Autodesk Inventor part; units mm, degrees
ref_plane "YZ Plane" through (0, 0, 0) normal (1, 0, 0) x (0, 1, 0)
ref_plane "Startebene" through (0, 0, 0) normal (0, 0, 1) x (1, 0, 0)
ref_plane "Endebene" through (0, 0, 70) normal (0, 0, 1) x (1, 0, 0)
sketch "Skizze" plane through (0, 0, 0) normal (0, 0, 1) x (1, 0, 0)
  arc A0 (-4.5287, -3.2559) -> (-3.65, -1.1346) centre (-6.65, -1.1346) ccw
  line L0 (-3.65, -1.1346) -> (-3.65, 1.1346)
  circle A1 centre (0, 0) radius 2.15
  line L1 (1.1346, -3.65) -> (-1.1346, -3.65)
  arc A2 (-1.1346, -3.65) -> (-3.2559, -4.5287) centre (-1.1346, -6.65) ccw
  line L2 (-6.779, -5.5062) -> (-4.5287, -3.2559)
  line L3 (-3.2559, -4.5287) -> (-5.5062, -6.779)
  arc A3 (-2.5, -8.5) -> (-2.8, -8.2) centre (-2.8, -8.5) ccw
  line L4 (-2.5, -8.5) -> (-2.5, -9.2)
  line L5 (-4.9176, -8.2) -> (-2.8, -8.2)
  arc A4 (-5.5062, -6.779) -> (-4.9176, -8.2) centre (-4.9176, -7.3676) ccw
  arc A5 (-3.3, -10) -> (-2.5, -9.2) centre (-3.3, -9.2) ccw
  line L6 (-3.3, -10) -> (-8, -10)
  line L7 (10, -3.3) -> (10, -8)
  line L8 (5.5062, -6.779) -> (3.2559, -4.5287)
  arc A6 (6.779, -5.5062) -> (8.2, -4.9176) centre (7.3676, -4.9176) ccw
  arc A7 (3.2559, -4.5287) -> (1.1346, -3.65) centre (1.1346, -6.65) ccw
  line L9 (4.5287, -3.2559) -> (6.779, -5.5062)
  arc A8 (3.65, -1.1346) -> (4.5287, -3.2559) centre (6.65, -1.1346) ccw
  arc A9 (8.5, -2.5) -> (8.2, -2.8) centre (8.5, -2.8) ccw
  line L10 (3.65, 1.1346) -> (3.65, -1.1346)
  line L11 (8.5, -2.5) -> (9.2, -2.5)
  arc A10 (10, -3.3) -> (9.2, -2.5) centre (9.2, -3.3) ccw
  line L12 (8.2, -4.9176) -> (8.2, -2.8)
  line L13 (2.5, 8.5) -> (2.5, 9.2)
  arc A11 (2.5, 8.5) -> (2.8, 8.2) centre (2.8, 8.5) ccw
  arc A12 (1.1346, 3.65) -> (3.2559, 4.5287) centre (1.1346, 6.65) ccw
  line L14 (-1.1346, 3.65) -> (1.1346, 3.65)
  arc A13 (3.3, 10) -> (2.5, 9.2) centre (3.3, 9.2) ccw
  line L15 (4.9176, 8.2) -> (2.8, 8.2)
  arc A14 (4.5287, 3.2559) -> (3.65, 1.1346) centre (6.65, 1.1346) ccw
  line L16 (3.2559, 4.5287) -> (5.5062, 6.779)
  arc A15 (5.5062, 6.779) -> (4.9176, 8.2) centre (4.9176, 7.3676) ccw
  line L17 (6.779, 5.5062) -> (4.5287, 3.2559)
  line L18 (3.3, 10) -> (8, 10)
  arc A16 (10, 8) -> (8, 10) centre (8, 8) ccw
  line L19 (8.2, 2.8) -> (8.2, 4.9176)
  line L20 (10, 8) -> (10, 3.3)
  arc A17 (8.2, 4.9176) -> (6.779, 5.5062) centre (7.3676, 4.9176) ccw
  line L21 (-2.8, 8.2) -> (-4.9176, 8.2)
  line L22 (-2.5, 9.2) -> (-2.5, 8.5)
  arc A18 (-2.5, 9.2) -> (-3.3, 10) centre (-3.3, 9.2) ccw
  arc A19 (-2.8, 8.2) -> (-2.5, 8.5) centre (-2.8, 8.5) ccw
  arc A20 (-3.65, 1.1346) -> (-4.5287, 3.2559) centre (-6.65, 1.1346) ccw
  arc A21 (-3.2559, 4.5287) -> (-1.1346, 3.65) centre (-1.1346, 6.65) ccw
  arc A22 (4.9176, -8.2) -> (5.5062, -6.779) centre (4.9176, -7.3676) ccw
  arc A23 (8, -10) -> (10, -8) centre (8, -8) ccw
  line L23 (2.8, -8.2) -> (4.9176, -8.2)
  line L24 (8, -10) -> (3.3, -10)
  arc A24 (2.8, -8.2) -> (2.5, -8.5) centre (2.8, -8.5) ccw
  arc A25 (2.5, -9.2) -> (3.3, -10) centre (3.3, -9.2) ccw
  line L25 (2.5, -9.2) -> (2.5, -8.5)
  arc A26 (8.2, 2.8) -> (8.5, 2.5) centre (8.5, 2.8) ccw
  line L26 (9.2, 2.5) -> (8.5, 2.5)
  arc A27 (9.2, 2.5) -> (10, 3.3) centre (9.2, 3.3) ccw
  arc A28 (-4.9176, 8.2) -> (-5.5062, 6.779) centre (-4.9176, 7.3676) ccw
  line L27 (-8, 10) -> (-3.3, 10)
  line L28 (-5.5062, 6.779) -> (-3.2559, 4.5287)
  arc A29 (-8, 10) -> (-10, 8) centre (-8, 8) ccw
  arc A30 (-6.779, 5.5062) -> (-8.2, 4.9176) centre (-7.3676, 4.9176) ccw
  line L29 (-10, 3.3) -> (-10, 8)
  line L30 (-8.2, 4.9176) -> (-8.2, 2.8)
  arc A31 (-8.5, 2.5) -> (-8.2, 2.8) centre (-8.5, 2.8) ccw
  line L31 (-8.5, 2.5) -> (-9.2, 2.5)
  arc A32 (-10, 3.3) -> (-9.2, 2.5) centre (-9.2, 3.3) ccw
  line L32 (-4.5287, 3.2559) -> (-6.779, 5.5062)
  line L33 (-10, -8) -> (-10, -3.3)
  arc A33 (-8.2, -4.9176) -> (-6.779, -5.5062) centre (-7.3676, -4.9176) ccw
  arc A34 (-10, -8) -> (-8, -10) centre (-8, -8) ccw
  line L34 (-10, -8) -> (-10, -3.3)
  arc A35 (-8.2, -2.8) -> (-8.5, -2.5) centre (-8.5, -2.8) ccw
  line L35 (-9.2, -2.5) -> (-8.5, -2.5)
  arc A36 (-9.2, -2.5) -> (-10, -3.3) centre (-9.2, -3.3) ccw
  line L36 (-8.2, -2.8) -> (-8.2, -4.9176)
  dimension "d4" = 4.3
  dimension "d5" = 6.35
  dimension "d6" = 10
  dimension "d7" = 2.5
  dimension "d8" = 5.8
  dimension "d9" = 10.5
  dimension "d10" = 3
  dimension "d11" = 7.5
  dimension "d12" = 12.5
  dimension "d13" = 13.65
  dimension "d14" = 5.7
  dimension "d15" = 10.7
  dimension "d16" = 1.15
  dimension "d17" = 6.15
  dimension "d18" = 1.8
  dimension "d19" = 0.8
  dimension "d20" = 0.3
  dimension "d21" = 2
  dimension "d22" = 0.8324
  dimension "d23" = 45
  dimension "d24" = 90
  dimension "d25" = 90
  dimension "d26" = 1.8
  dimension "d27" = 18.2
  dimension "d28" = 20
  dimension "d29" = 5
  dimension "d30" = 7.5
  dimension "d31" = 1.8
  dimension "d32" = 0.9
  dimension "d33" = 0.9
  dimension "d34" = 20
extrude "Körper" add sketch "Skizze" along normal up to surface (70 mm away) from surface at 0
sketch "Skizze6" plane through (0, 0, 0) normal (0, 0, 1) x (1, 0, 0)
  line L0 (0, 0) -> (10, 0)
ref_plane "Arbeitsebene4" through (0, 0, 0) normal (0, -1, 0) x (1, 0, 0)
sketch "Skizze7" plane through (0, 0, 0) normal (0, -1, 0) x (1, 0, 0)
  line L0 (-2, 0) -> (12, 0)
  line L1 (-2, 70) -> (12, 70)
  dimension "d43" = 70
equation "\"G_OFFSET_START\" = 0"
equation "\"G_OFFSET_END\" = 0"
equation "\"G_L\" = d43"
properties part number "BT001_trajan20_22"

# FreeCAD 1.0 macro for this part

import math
import FreeCAD as App
import Part
import Sketcher

V = App.Vector
Q = App.Units.Quantity

doc = App.newDocument("Part")
body = doc.addObject("PartDesign::Body", "Body")

# Sketch on XY plane
sketch1 = body.newObject("Sketcher::SketchObject", "Sketch")
sketch1.AttachmentSupport = (doc.getObject("XY_Plane"), [""])
sketch1.MapMode = "FlatFace"
sketch1.addGeometry(Part.ArcOfCircle(Part.Circle(V(-6.65, -1.13, 0), V(0, 0, 1), 3), math.radians(-45), math.radians(0)), False)
sketch1.addGeometry(Part.LineSegment(V(-4.53, -3.26, 0), V(-6.78, -5.51, 0)), False)
sketch1.addGeometry(Part.ArcOfCircle(Part.Circle(V(-7.37, -4.92, 0), V(0, 0, 1), 0.83), math.radians(180), math.radians(315)), False)
sketch1.addGeometry(Part.LineSegment(V(-8.2, -4.92, 0), V(-8.2, -2.8, 0)), False)
sketch1.addGeometry(Part.ArcOfCircle(Part.Circle(V(-8.5, -2.8, 0), V(0, 0, 1), 0.3), math.radians(0), math.radians(90)), False)
sketch1.addGeometry(Part.LineSegment(V(-8.5, -2.5, 0), V(-9.2, -2.5, 0)), False)
sketch1.addGeometry(Part.ArcOfCircle(Part.Circle(V(-9.2, -3.3, 0), V(0, 0, 1), 0.8), math.radians(90), math.radians(180)), False)
sketch1.addGeometry(Part.LineSegment(V(-10, -3.3, 0), V(-10, -8, 0)), False)
sketch1.addGeometry(Part.ArcOfCircle(Part.Circle(V(-8, -8, 0), V(0, 0, 1), 2), math.radians(180), math.radians(270)), False)
sketch1.addGeometry(Part.LineSegment(V(-8, -10, 0), V(-3.3, -10, 0)), False)
sketch1.addGeometry(Part.ArcOfCircle(Part.Circle(V(-3.3, -9.2, 0), V(0, 0, 1), 0.8), math.radians(-90), math.radians(0)), False)
sketch1.addGeometry(Part.LineSegment(V(-2.5, -9.2, 0), V(-2.5, -8.5, 0)), False)
sketch1.addGeometry(Part.ArcOfCircle(Part.Circle(V(-2.8, -8.5, 0), V(0, 0, 1), 0.3), math.radians(0), math.radians(90)), False)
sketch1.addGeometry(Part.LineSegment(V(-2.8, -8.2, 0), V(-4.92, -8.2, 0)), False)
sketch1.addGeometry(Part.ArcOfCircle(Part.Circle(V(-4.92, -7.37, 0), V(0, 0, 1), 0.83), math.radians(135), math.radians(270)), False)
sketch1.addGeometry(Part.LineSegment(V(-5.51, -6.78, 0), V(-3.26, -4.53, 0)), False)
sketch1.addGeometry(Part.ArcOfCircle(Part.Circle(V(-1.13, -6.65, 0), V(0, 0, 1), 3), math.radians(90), math.radians(135)), False)
sketch1.addGeometry(Part.LineSegment(V(-1.13, -3.65, 0), V(1.13, -3.65, 0)), False)
sketch1.addGeometry(Part.ArcOfCircle(Part.Circle(V(1.13, -6.65, 0), V(0, 0, 1), 3), math.radians(45), math.radians(90)), False)
sketch1.addGeometry(Part.LineSegment(V(3.26, -4.53, 0), V(5.51, -6.78, 0)), False)
sketch1.addGeometry(Part.ArcOfCircle(Part.Circle(V(4.92, -7.37, 0), V(0, 0, 1), 0.83), math.radians(-90), math.radians(45)), False)
sketch1.addGeometry(Part.LineSegment(V(4.92, -8.2, 0), V(2.8, -8.2, 0)), False)
sketch1.addGeometry(Part.ArcOfCircle(Part.Circle(V(2.8, -8.5, 0), V(0, 0, 1), 0.3), math.radians(90), math.radians(180)), False)
sketch1.addGeometry(Part.LineSegment(V(2.5, -8.5, 0), V(2.5, -9.2, 0)), False)
sketch1.addGeometry(Part.ArcOfCircle(Part.Circle(V(3.3, -9.2, 0), V(0, 0, 1), 0.8), math.radians(180), math.radians(270)), False)
sketch1.addGeometry(Part.LineSegment(V(3.3, -10, 0), V(8, -10, 0)), False)
sketch1.addGeometry(Part.ArcOfCircle(Part.Circle(V(8, -8, 0), V(0, 0, 1), 2), math.radians(-90), math.radians(0)), False)
sketch1.addGeometry(Part.LineSegment(V(10, -8, 0), V(10, -3.3, 0)), False)
sketch1.addGeometry(Part.ArcOfCircle(Part.Circle(V(9.2, -3.3, 0), V(0, 0, 1), 0.8), math.radians(0), math.radians(90)), False)
sketch1.addGeometry(Part.LineSegment(V(9.2, -2.5, 0), V(8.5, -2.5, 0)), False)
sketch1.addGeometry(Part.ArcOfCircle(Part.Circle(V(8.5, -2.8, 0), V(0, 0, 1), 0.3), math.radians(90), math.radians(180)), False)
sketch1.addGeometry(Part.LineSegment(V(8.2, -2.8, 0), V(8.2, -4.92, 0)), False)
sketch1.addGeometry(Part.ArcOfCircle(Part.Circle(V(7.37, -4.92, 0), V(0, 0, 1), 0.83), math.radians(-135), math.radians(0)), False)
sketch1.addGeometry(Part.LineSegment(V(6.78, -5.51, 0), V(4.53, -3.26, 0)), False)
sketch1.addGeometry(Part.ArcOfCircle(Part.Circle(V(6.65, -1.13, 0), V(0, 0, 1), 3), math.radians(180), math.radians(225)), False)
sketch1.addGeometry(Part.LineSegment(V(3.65, -1.13, 0), V(3.65, 1.13, 0)), False)
sketch1.addGeometry(Part.ArcOfCircle(Part.Circle(V(6.65, 1.13, 0), V(0, 0, 1), 3), math.radians(135), math.radians(180)), False)
sketch1.addGeometry(Part.LineSegment(V(4.53, 3.26, 0), V(6.78, 5.51, 0)), False)
sketch1.addGeometry(Part.ArcOfCircle(Part.Circle(V(7.37, 4.92, 0), V(0, 0, 1), 0.83), math.radians(0), math.radians(135)), False)
sketch1.addGeometry(Part.LineSegment(V(8.2, 4.92, 0), V(8.2, 2.8, 0)), False)
sketch1.addGeometry(Part.ArcOfCircle(Part.Circle(V(8.5, 2.8, 0), V(0, 0, 1), 0.3), math.radians(180), math.radians(270)), False)
sketch1.addGeometry(Part.LineSegment(V(8.5, 2.5, 0), V(9.2, 2.5, 0)), False)
sketch1.addGeometry(Part.ArcOfCircle(Part.Circle(V(9.2, 3.3, 0), V(0, 0, 1), 0.8), math.radians(-90), math.radians(0)), False)
sketch1.addGeometry(Part.LineSegment(V(10, 3.3, 0), V(10, 8, 0)), False)
sketch1.addGeometry(Part.ArcOfCircle(Part.Circle(V(8, 8, 0), V(0, 0, 1), 2), math.radians(0), math.radians(90)), False)
sketch1.addGeometry(Part.LineSegment(V(8, 10, 0), V(3.3, 10, 0)), False)
sketch1.addGeometry(Part.ArcOfCircle(Part.Circle(V(3.3, 9.2, 0), V(0, 0, 1), 0.8), math.radians(90), math.radians(180)), False)
sketch1.addGeometry(Part.LineSegment(V(2.5, 9.2, 0), V(2.5, 8.5, 0)), False)
sketch1.addGeometry(Part.ArcOfCircle(Part.Circle(V(2.8, 8.5, 0), V(0, 0, 1), 0.3), math.radians(180), math.radians(270)), False)
sketch1.addGeometry(Part.LineSegment(V(2.8, 8.2, 0), V(4.92, 8.2, 0)), False)
sketch1.addGeometry(Part.ArcOfCircle(Part.Circle(V(4.92, 7.37, 0), V(0, 0, 1), 0.83), math.radians(-45), math.radians(90)), False)
sketch1.addGeometry(Part.LineSegment(V(5.51, 6.78, 0), V(3.26, 4.53, 0)), False)
sketch1.addGeometry(Part.ArcOfCircle(Part.Circle(V(1.13, 6.65, 0), V(0, 0, 1), 3), math.radians(-90), math.radians(-45)), False)
sketch1.addGeometry(Part.LineSegment(V(1.13, 3.65, 0), V(-1.13, 3.65, 0)), False)
sketch1.addGeometry(Part.ArcOfCircle(Part.Circle(V(-1.13, 6.65, 0), V(0, 0, 1), 3), math.radians(-135), math.radians(-90)), False)
sketch1.addGeometry(Part.LineSegment(V(-3.26, 4.53, 0), V(-5.51, 6.78, 0)), False)
sketch1.addGeometry(Part.ArcOfCircle(Part.Circle(V(-4.92, 7.37, 0), V(0, 0, 1), 0.83), math.radians(90), math.radians(225)), False)
sketch1.addGeometry(Part.LineSegment(V(-4.92, 8.2, 0), V(-2.8, 8.2, 0)), False)
sketch1.addGeometry(Part.ArcOfCircle(Part.Circle(V(-2.8, 8.5, 0), V(0, 0, 1), 0.3), math.radians(-90), math.radians(0)), False)
sketch1.addGeometry(Part.LineSegment(V(-2.5, 8.5, 0), V(-2.5, 9.2, 0)), False)
sketch1.addGeometry(Part.ArcOfCircle(Part.Circle(V(-3.3, 9.2, 0), V(0, 0, 1), 0.8), math.radians(0), math.radians(90)), False)
sketch1.addGeometry(Part.LineSegment(V(-3.3, 10, 0), V(-8, 10, 0)), False)
sketch1.addGeometry(Part.ArcOfCircle(Part.Circle(V(-8, 8, 0), V(0, 0, 1), 2), math.radians(90), math.radians(180)), False)
sketch1.addGeometry(Part.LineSegment(V(-10, 8, 0), V(-10, 3.3, 0)), False)
sketch1.addGeometry(Part.ArcOfCircle(Part.Circle(V(-9.2, 3.3, 0), V(0, 0, 1), 0.8), math.radians(180), math.radians(270)), False)
sketch1.addGeometry(Part.LineSegment(V(-9.2, 2.5, 0), V(-8.5, 2.5, 0)), False)
sketch1.addGeometry(Part.ArcOfCircle(Part.Circle(V(-8.5, 2.8, 0), V(0, 0, 1), 0.3), math.radians(-90), math.radians(0)), False)
sketch1.addGeometry(Part.LineSegment(V(-8.2, 2.8, 0), V(-8.2, 4.92, 0)), False)
sketch1.addGeometry(Part.ArcOfCircle(Part.Circle(V(-7.37, 4.92, 0), V(0, 0, 1), 0.83), math.radians(45), math.radians(180)), False)
sketch1.addGeometry(Part.LineSegment(V(-6.78, 5.51, 0), V(-4.53, 3.26, 0)), False)
sketch1.addGeometry(Part.ArcOfCircle(Part.Circle(V(-6.65, 1.13, 0), V(0, 0, 1), 3), math.radians(0), math.radians(45)), False)
sketch1.addGeometry(Part.LineSegment(V(-3.65, 1.13, 0), V(-3.65, -1.13, 0)), False)
sketch1.addGeometry(Part.Circle(V(0, 0, 0), V(0, 0, 1), 2.15), False)
sketch1.addConstraint(Sketcher.Constraint("Tangent", 0, 1, 1, 1))
sketch1.addConstraint(Sketcher.Constraint("Tangent", 1, 2, 2, 2))
sketch1.addConstraint(Sketcher.Constraint("Tangent", 2, 1, 3, 1))
sketch1.addConstraint(Sketcher.Constraint("Tangent", 3, 2, 4, 1))
sketch1.addConstraint(Sketcher.Constraint("Tangent", 4, 2, 5, 1))
sketch1.addConstraint(Sketcher.Constraint("Tangent", 5, 2, 6, 1))
sketch1.addConstraint(Sketcher.Constraint("Tangent", 6, 2, 7, 1))
sketch1.addConstraint(Sketcher.Constraint("Tangent", 7, 2, 8, 1))
sketch1.addConstraint(Sketcher.Constraint("Tangent", 8, 2, 9, 1))
sketch1.addConstraint(Sketcher.Constraint("Tangent", 9, 2, 10, 1))
sketch1.addConstraint(Sketcher.Constraint("Tangent", 10, 2, 11, 1))
sketch1.addConstraint(Sketcher.Constraint("Tangent", 11, 2, 12, 1))
sketch1.addConstraint(Sketcher.Constraint("Tangent", 12, 2, 13, 1))
sketch1.addConstraint(Sketcher.Constraint("Tangent", 13, 2, 14, 2))
sketch1.addConstraint(Sketcher.Constraint("Tangent", 14, 1, 15, 1))
sketch1.addConstraint(Sketcher.Constraint("Tangent", 15, 2, 16, 2))
sketch1.addConstraint(Sketcher.Constraint("Tangent", 16, 1, 17, 1))
sketch1.addConstraint(Sketcher.Constraint("Tangent", 17, 2, 18, 2))
sketch1.addConstraint(Sketcher.Constraint("Tangent", 18, 1, 19, 1))
sketch1.addConstraint(Sketcher.Constraint("Tangent", 19, 2, 20, 2))
sketch1.addConstraint(Sketcher.Constraint("Tangent", 20, 1, 21, 1))
sketch1.addConstraint(Sketcher.Constraint("Tangent", 21, 2, 22, 1))
sketch1.addConstraint(Sketcher.Constraint("Tangent", 22, 2, 23, 1))
sketch1.addConstraint(Sketcher.Constraint("Tangent", 23, 2, 24, 1))
sketch1.addConstraint(Sketcher.Constraint("Tangent", 24, 2, 25, 1))
sketch1.addConstraint(Sketcher.Constraint("Tangent", 25, 2, 26, 1))
sketch1.addConstraint(Sketcher.Constraint("Tangent", 26, 2, 27, 1))
sketch1.addConstraint(Sketcher.Constraint("Tangent", 27, 2, 28, 1))
sketch1.addConstraint(Sketcher.Constraint("Tangent", 28, 2, 29, 1))
sketch1.addConstraint(Sketcher.Constraint("Tangent", 29, 2, 30, 1))
sketch1.addConstraint(Sketcher.Constraint("Tangent", 30, 2, 31, 1))
sketch1.addConstraint(Sketcher.Constraint("Tangent", 31, 2, 32, 2))
sketch1.addConstraint(Sketcher.Constraint("Tangent", 32, 1, 33, 1))
sketch1.addConstraint(Sketcher.Constraint("Tangent", 33, 2, 34, 2))
sketch1.addConstraint(Sketcher.Constraint("Tangent", 34, 1, 35, 1))
sketch1.addConstraint(Sketcher.Constraint("Tangent", 35, 2, 36, 2))
sketch1.addConstraint(Sketcher.Constraint("Tangent", 36, 1, 37, 1))
sketch1.addConstraint(Sketcher.Constraint("Tangent", 37, 2, 38, 2))
sketch1.addConstraint(Sketcher.Constraint("Tangent", 38, 1, 39, 1))
sketch1.addConstraint(Sketcher.Constraint("Tangent", 39, 2, 40, 1))
sketch1.addConstraint(Sketcher.Constraint("Tangent", 40, 2, 41, 1))
sketch1.addConstraint(Sketcher.Constraint("Tangent", 41, 2, 42, 1))
sketch1.addConstraint(Sketcher.Constraint("Tangent", 42, 2, 43, 1))
sketch1.addConstraint(Sketcher.Constraint("Tangent", 43, 2, 44, 1))
sketch1.addConstraint(Sketcher.Constraint("Tangent", 44, 2, 45, 1))
sketch1.addConstraint(Sketcher.Constraint("Tangent", 45, 2, 46, 1))
sketch1.addConstraint(Sketcher.Constraint("Tangent", 46, 2, 47, 1))
sketch1.addConstraint(Sketcher.Constraint("Tangent", 47, 2, 48, 1))
sketch1.addConstraint(Sketcher.Constraint("Tangent", 48, 2, 49, 1))
sketch1.addConstraint(Sketcher.Constraint("Tangent", 49, 2, 50, 2))
sketch1.addConstraint(Sketcher.Constraint("Tangent", 50, 1, 51, 1))
sketch1.addConstraint(Sketcher.Constraint("Tangent", 51, 2, 52, 2))
sketch1.addConstraint(Sketcher.Constraint("Tangent", 52, 1, 53, 1))
sketch1.addConstraint(Sketcher.Constraint("Tangent", 53, 2, 54, 2))
sketch1.addConstraint(Sketcher.Constraint("Tangent", 54, 1, 55, 1))
sketch1.addConstraint(Sketcher.Constraint("Tangent", 55, 2, 56, 2))
sketch1.addConstraint(Sketcher.Constraint("Tangent", 56, 1, 57, 1))
sketch1.addConstraint(Sketcher.Constraint("Tangent", 57, 2, 58, 1))
sketch1.addConstraint(Sketcher.Constraint("Tangent", 58, 2, 59, 1))
sketch1.addConstraint(Sketcher.Constraint("Tangent", 59, 2, 60, 1))
sketch1.addConstraint(Sketcher.Constraint("Tangent", 60, 2, 61, 1))
sketch1.addConstraint(Sketcher.Constraint("Tangent", 61, 2, 62, 1))
sketch1.addConstraint(Sketcher.Constraint("Tangent", 62, 2, 63, 1))
sketch1.addConstraint(Sketcher.Constraint("Tangent", 63, 2, 64, 1))
sketch1.addConstraint(Sketcher.Constraint("Tangent", 64, 2, 65, 1))
sketch1.addConstraint(Sketcher.Constraint("Tangent", 65, 2, 66, 1))
sketch1.addConstraint(Sketcher.Constraint("Tangent", 66, 2, 67, 1))
sketch1.addConstraint(Sketcher.Constraint("Tangent", 67, 2, 68, 2))
sketch1.addConstraint(Sketcher.Constraint("Tangent", 68, 1, 69, 1))
sketch1.addConstraint(Sketcher.Constraint("Tangent", 69, 2, 70, 2))
sketch1.addConstraint(Sketcher.Constraint("Tangent", 70, 1, 71, 1))
sketch1.addConstraint(Sketcher.Constraint("Tangent", 71, 2, 0, 2))
sketch1.addConstraint(Sketcher.Constraint("Vertical", 3))
sketch1.addConstraint(Sketcher.Constraint("Horizontal", 5))
sketch1.addConstraint(Sketcher.Constraint("Vertical", 7))
sketch1.addConstraint(Sketcher.Constraint("Horizontal", 9))
sketch1.addConstraint(Sketcher.Constraint("Vertical", 11))
sketch1.addConstraint(Sketcher.Constraint("Horizontal", 13))
sketch1.addConstraint(Sketcher.Constraint("Horizontal", 17))
sketch1.addConstraint(Sketcher.Constraint("Horizontal", 21))
sketch1.addConstraint(Sketcher.Constraint("Vertical", 23))
sketch1.addConstraint(Sketcher.Constraint("Horizontal", 25))
sketch1.addConstraint(Sketcher.Constraint("Vertical", 27))
sketch1.addConstraint(Sketcher.Constraint("Horizontal", 29))
sketch1.addConstraint(Sketcher.Constraint("Vertical", 31))
sketch1.addConstraint(Sketcher.Constraint("Vertical", 35))
sketch1.addConstraint(Sketcher.Constraint("Vertical", 39))
sketch1.addConstraint(Sketcher.Constraint("Horizontal", 41))
sketch1.addConstraint(Sketcher.Constraint("Vertical", 43))
sketch1.addConstraint(Sketcher.Constraint("Horizontal", 45))
sketch1.addConstraint(Sketcher.Constraint("Vertical", 47))
sketch1.addConstraint(Sketcher.Constraint("Horizontal", 49))
sketch1.addConstraint(Sketcher.Constraint("Horizontal", 53))
sketch1.addConstraint(Sketcher.Constraint("Horizontal", 57))
sketch1.addConstraint(Sketcher.Constraint("Vertical", 59))
sketch1.addConstraint(Sketcher.Constraint("Horizontal", 61))
sketch1.addConstraint(Sketcher.Constraint("Vertical", 63))
sketch1.addConstraint(Sketcher.Constraint("Horizontal", 65))
sketch1.addConstraint(Sketcher.Constraint("Vertical", 67))
sketch1.addConstraint(Sketcher.Constraint("Vertical", 71))
sketch1.addConstraint(Sketcher.Constraint("Coincident", 72, 3, -1, 1))
sketch1.addConstraint(Sketcher.Constraint("Equal", 6, 10))
sketch1.addConstraint(Sketcher.Constraint("Equal", 4, 12))
sketch1.addConstraint(Sketcher.Constraint("Equal", 2, 14))
sketch1.addConstraint(Sketcher.Constraint("Equal", 0, 16))
sketch1.addConstraint(Sketcher.Constraint("Equal", 16, 18))
sketch1.addConstraint(Sketcher.Constraint("Equal", 14, 20))
sketch1.addConstraint(Sketcher.Constraint("Equal", 12, 22))
sketch1.addConstraint(Sketcher.Constraint("Equal", 10, 24))
sketch1.addConstraint(Sketcher.Constraint("Equal", 8, 26))
sketch1.addConstraint(Sketcher.Constraint("Equal", 24, 28))
sketch1.addConstraint(Sketcher.Constraint("Equal", 22, 30))
sketch1.addConstraint(Sketcher.Constraint("Equal", 20, 32))
sketch1.addConstraint(Sketcher.Constraint("Equal", 18, 34))
sketch1.addConstraint(Sketcher.Constraint("Equal", 34, 36))
sketch1.addConstraint(Sketcher.Constraint("Equal", 32, 38))
sketch1.addConstraint(Sketcher.Constraint("Equal", 30, 40))
sketch1.addConstraint(Sketcher.Constraint("Equal", 28, 42))
sketch1.addConstraint(Sketcher.Constraint("Equal", 26, 44))
sketch1.addConstraint(Sketcher.Constraint("Equal", 42, 46))
sketch1.addConstraint(Sketcher.Constraint("Equal", 40, 48))
sketch1.addConstraint(Sketcher.Constraint("Equal", 38, 50))
sketch1.addConstraint(Sketcher.Constraint("Equal", 36, 52))
sketch1.addConstraint(Sketcher.Constraint("Equal", 52, 54))
sketch1.addConstraint(Sketcher.Constraint("Equal", 50, 56))
sketch1.addConstraint(Sketcher.Constraint("Equal", 48, 58))
sketch1.addConstraint(Sketcher.Constraint("Equal", 46, 60))
sketch1.addConstraint(Sketcher.Constraint("Equal", 44, 62))
sketch1.addConstraint(Sketcher.Constraint("Equal", 60, 64))
sketch1.addConstraint(Sketcher.Constraint("Equal", 58, 66))
sketch1.addConstraint(Sketcher.Constraint("Equal", 56, 68))
sketch1.addConstraint(Sketcher.Constraint("Equal", 54, 70))
sketch1.addConstraint(Sketcher.Constraint("Symmetric", 0, 3, 36, 3, -1, 1))
sketch1.addConstraint(Sketcher.Constraint("Symmetric", 2, 3, 38, 3, -1, 1))
sketch1.addConstraint(Sketcher.Constraint("Symmetric", 6, 3, 42, 3, -1, 1))
sketch1.addConstraint(Sketcher.Constraint("Symmetric", 10, 3, 46, 3, -1, 1))
sketch1.addConstraint(Sketcher.Constraint("Symmetric", 14, 3, 50, 3, -1, 1))
sketch1.addConstraint(Sketcher.Constraint("Symmetric", 16, 3, 52, 3, -1, 1))
sketch1.addConstraint(Sketcher.Constraint("Symmetric", 20, 3, 56, 3, -1, 1))
sketch1.addConstraint(Sketcher.Constraint("Symmetric", 24, 3, 60, 3, -1, 1))
sketch1.addConstraint(Sketcher.Constraint("Symmetric", 28, 3, 64, 3, -1, 1))
sketch1.addConstraint(Sketcher.Constraint("Symmetric", 32, 3, 68, 3, -1, 1))
sketch1.addConstraint(Sketcher.Constraint("Symmetric", 14, 3, 20, 3, -2))
sketch1.addConstraint(Sketcher.Constraint("Symmetric", 10, 3, 24, 3, -2))
sketch1.addConstraint(Sketcher.Constraint("Symmetric", 6, 3, 28, 3, -2))
sketch1.addConstraint(Sketcher.Constraint("Symmetric", 2, 3, 32, 3, -2))
sketch1.addConstraint(Sketcher.Constraint("Parallel", 1, 15))
sketch1.addConstraint(Sketcher.Constraint("Perpendicular", 15, 19))
sketch1.addConstraint(Sketcher.Constraint("Parallel", 19, 33))
sketch1.addConstraint(Sketcher.Constraint("Perpendicular", 51, 55))
sketch1.addConstraint(Sketcher.Constraint("Parallel", 55, 69))
sketch1.addConstraint(Sketcher.Constraint("Horizontal", 0, 3, 34, 3))
sketch1.addConstraint(Sketcher.Constraint("Equal", 57, 3))
sketch1.addConstraint(Sketcher.Constraint("Equal", 61, 7))
sketch1.addConstraint(Sketcher.Constraint("Equal", 65, 11))
sketch1.addConstraint(Sketcher.Constraint("Equal", 53, 35))
sketch1.addConstraint(Sketcher.Constraint("Equal", 1, 15))
sketch1.addConstraint(Sketcher.Constraint("Radius", 0, Q("3 mm")))
sketch1.addConstraint(Sketcher.Constraint("Radius", 8, Q("2 mm")))
sketch1.addConstraint(Sketcher.Constraint("Diameter", 72, Q("4.3 mm")))
sketch1.addConstraint(Sketcher.Constraint("Radius", 4, Q("0.3 mm")))
sketch1.addConstraint(Sketcher.Constraint("Radius", 6, Q("0.8 mm")))
sketch1.addConstraint(Sketcher.Constraint("DistanceX", 6, 2, -1, 1, Q("10 mm")))
sketch1.addConstraint(Sketcher.Constraint("DistanceY", 4, 2, -1, 1, Q("2.5 mm")))
sketch1.addConstraint(Sketcher.Constraint("Radius", 2, Q("0.8324 mm")))
sketch1.addConstraint(Sketcher.Constraint("DistanceX", 5, 2, 5, 1, Q("0.7 mm")))
sketch1.addConstraint(Sketcher.Constraint("DistanceX", 0, 3, -1, 1, Q("6.65 mm")))
sketch1.addConstraint(Sketcher.Constraint("DistanceX", 13, 2, 13, 1, Q("2.1176 mm")))
pad1 = body.newObject("PartDesign::Pad", "Pad")
pad1.Profile = sketch1
pad1.Length = 70

doc.recompute()
